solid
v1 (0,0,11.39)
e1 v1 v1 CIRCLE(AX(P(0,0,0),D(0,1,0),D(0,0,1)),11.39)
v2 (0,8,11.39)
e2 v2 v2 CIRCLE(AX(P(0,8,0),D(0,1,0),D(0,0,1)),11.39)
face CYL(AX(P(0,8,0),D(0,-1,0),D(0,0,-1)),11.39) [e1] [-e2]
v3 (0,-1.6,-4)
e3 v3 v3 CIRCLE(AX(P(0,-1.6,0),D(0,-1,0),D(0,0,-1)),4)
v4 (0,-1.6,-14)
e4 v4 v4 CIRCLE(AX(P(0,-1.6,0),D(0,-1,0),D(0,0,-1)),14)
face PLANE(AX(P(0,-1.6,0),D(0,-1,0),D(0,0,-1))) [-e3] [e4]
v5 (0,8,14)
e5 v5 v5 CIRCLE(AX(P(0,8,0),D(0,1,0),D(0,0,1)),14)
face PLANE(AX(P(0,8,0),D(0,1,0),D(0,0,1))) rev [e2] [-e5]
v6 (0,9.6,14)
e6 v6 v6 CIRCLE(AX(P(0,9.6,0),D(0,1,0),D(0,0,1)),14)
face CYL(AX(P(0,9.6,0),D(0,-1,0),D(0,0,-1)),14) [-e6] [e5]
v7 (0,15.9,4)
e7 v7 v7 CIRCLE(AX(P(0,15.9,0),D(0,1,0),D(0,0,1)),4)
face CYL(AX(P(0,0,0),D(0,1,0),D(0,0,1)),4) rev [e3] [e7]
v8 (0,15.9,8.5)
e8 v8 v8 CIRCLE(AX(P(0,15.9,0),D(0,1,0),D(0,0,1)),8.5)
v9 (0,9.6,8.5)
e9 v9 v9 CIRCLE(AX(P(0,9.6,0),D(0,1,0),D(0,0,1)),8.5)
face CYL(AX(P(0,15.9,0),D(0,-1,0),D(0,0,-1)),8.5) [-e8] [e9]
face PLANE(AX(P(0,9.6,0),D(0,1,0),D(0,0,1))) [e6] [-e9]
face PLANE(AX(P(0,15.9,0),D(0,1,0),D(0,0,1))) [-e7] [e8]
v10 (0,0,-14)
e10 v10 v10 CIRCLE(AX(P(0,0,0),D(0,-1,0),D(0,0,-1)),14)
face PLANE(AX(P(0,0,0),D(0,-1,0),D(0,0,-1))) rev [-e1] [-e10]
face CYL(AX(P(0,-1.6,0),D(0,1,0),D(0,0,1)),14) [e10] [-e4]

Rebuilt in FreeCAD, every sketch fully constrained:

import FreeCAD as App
import Part
import Sketcher
from FreeCAD import Vector
Q = App.Units.Quantity

doc = App.newDocument("Part")
body = doc.addObject("PartDesign::Body", "Body")

sketch1 = body.newObject("Sketcher::SketchObject", "Sketch")
sketch1.AttachmentSupport = (doc.getObject("XZ_Plane"), [""])
sketch1.MapMode = "FlatFace"
sketch1.addGeometry(Part.Circle(Vector(0, 0, 0), Vector(0, 0, 1), 11), False)
sketch1.addConstraint([
    Sketcher.Constraint("Coincident", 0, 3, -1, 1),
    Sketcher.Constraint("Diameter", 0, Q("22.78 mm")),
])
pad1 = body.newObject("PartDesign::Pad", "Pad")
pad1.Profile = sketch1
pad1.Length = 8
pad1.Reversed = True

sketch2 = body.newObject("Sketcher::SketchObject", "Sketch001")
sketch2.AttachmentSupport = (doc.getObject("XZ_Plane"), [""])
sketch2.MapMode = "FlatFace"
sketch2.AttachmentOffset = App.Placement(Vector(0, 0, -8), App.Rotation())
sketch2.addGeometry(Part.Circle(Vector(0, 0, 0), Vector(0, 0, 1), 14), False)
sketch2.addConstraint([
    Sketcher.Constraint("Coincident", 0, 3, -1, 1),
    Sketcher.Constraint("Diameter", 0, Q("28 mm")),
])
pad2 = body.newObject("PartDesign::Pad", "Pad001")
pad2.Profile = sketch2
pad2.Length = 1.6
pad2.Reversed = True

sketch3 = body.newObject("Sketcher::SketchObject", "Sketch002")
sketch3.AttachmentSupport = (doc.getObject("XZ_Plane"), [""])
sketch3.MapMode = "FlatFace"
sketch3.AttachmentOffset = App.Placement(Vector(0, 0, -9.6), App.Rotation())
sketch3.addGeometry(Part.Circle(Vector(0, 0, 0), Vector(0, 0, 1), 8), False)
sketch3.addConstraint([
    Sketcher.Constraint("Coincident", 0, 3, -1, 1),
    Sketcher.Constraint("Diameter", 0, Q("17 mm")),
])
pad3 = body.newObject("PartDesign::Pad", "Pad002")
pad3.Profile = sketch3
pad3.Length = 6.3
pad3.Reversed = True

sketch4 = body.newObject("Sketcher::SketchObject", "Sketch003")
sketch4.AttachmentSupport = (doc.getObject("XZ_Plane"), [""])
sketch4.MapMode = "FlatFace"
sketch4.AttachmentOffset = App.Placement(Vector(0, 0, -15.9), App.Rotation())
sketch4.addGeometry(Part.Circle(Vector(0, 0, 0), Vector(0, 0, 1), 4), False)
sketch4.addConstraint([
    Sketcher.Constraint("Coincident", 0, 3, -1, 1),
    Sketcher.Constraint("Diameter", 0, Q("8 mm")),
])
pocket1 = body.newObject("PartDesign::Pocket", "Pocket")
pocket1.Profile = sketch4
pocket1.Type = "ThroughAll"
pocket1.Midplane = True

sketch5 = body.newObject("Sketcher::SketchObject", "Sketch004")
sketch5.AttachmentSupport = (doc.getObject("XZ_Plane"), [""])
sketch5.MapMode = "FlatFace"
sketch5.addGeometry([
    Part.Circle(Vector(0, 0, 0), Vector(0, 0, 1), 14),
    Part.Circle(Vector(0, 0, 0), Vector(0, 0, 1), 4),
], False)
sketch5.addConstraint([
    Sketcher.Constraint("Coincident", 0, 3, -1, 1),
    Sketcher.Constraint("Coincident", 1, 3, -1, 1),
    Sketcher.Constraint("Diameter", 0, Q("28 mm")),
    Sketcher.Constraint("Diameter", 1, Q("8 mm")),
])
pad4 = body.newObject("PartDesign::Pad", "Pad003")
pad4.Profile = sketch5
pad4.Length = 1.6

doc.recompute()
